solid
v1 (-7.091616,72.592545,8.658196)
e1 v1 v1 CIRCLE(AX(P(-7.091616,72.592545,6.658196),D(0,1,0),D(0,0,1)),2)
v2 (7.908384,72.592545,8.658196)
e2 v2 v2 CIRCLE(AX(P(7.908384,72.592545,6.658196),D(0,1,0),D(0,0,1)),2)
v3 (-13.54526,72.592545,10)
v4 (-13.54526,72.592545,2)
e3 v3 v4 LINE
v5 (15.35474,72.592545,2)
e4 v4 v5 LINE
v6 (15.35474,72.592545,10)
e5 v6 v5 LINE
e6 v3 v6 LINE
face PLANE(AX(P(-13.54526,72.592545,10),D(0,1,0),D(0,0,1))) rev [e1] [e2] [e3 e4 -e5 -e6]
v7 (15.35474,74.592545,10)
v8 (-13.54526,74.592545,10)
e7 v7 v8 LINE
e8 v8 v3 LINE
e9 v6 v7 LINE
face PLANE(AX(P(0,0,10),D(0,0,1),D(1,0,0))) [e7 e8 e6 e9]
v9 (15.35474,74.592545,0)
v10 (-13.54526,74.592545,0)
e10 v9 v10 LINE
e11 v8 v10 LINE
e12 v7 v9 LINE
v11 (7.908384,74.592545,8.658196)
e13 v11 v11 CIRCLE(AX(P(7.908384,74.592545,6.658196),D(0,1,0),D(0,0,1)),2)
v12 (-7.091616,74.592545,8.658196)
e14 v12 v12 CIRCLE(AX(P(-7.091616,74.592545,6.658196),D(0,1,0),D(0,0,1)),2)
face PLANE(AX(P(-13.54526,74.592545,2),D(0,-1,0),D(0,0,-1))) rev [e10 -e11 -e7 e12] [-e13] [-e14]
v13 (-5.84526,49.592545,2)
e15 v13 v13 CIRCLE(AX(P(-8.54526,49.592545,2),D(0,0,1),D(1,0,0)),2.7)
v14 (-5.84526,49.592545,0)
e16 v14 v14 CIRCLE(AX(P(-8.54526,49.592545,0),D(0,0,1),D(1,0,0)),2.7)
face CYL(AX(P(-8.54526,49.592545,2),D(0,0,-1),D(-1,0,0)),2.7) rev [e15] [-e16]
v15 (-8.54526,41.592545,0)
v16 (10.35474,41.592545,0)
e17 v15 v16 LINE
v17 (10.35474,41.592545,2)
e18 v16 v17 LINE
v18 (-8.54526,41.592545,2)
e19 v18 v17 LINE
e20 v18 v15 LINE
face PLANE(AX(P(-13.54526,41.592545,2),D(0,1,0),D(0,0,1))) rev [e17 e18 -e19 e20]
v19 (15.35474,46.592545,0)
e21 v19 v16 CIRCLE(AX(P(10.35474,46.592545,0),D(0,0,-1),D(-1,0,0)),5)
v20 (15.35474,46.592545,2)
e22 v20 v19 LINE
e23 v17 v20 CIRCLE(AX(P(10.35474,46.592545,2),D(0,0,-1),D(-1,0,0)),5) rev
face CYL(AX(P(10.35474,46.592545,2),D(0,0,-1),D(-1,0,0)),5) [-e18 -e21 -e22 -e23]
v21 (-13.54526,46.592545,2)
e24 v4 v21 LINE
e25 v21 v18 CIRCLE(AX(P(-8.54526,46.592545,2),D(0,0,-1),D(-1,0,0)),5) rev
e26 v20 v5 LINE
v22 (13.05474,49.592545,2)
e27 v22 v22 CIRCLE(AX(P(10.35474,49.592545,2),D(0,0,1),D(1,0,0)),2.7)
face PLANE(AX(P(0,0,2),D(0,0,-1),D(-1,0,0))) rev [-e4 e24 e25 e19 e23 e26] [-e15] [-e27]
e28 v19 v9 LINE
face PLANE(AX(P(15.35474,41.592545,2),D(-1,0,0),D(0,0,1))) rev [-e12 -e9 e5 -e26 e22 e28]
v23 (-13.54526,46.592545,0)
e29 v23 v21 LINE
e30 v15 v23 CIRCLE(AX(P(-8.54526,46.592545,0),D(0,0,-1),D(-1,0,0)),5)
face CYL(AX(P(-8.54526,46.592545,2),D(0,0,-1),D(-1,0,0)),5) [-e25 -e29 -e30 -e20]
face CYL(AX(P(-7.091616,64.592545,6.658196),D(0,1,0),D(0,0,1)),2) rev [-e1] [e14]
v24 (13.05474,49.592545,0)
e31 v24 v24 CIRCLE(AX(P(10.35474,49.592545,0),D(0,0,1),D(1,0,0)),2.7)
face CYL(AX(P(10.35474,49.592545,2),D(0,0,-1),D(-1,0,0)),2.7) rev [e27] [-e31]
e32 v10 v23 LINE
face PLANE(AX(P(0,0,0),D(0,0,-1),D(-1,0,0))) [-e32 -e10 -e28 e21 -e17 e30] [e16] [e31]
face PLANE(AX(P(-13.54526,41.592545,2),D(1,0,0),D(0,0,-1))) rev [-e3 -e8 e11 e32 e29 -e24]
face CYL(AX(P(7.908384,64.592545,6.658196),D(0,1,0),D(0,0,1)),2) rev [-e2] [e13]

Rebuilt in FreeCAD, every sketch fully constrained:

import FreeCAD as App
import Part
import Sketcher
from FreeCAD import Vector


def edges_at(feature, points):
    """Names of the edges that pass closest to the given points."""
    edges = feature.Shape.Edges
    near = lambda p: min(range(len(edges)), key=lambda i: edges[i].distToShape(Part.Vertex(*p))[0])
    return sorted({f"Edge{near(p) + 1}" for p in points})

doc = App.newDocument("Part")
body = doc.addObject("PartDesign::Body", "Body")

# Sketch on XY plane
sketch1 = body.newObject("Sketcher::SketchObject", "Sketch")
sketch1.AttachmentSupport = (doc.getObject("XY_Plane"), [""])
sketch1.MapMode = "FlatFace"
sketch1.addGeometry([
    Part.LineSegment(Vector(-13.54526, 74.592545, 0), Vector(-13.54526, 41.592545, 0)),  # 0
    Part.LineSegment(Vector(-13.54526, 41.592545, 0), Vector(15.35474, 41.592545, 0)),  # 1
    Part.LineSegment(Vector(15.35474, 41.592545, 0), Vector(15.35474, 74.592545, 0)),  # 2
    Part.LineSegment(Vector(15.35474, 74.592545, 0), Vector(-13.54526, 74.592545, 0)),  # 3
    Part.Circle(Vector(-8.54526, 49.592545, 0), Vector(0, 0, 1), 2.7),  # 4
    Part.Circle(Vector(10.35474, 49.592545, 0), Vector(0, 0, 1), 2.7),  # 5
], False)
sketch1.addConstraint([
    Sketcher.Constraint("Coincident", 0, 2, 1, 1),
    Sketcher.Constraint("Coincident", 1, 2, 2, 1),
    Sketcher.Constraint("Coincident", 2, 2, 3, 1),
    Sketcher.Constraint("Coincident", 3, 2, 0, 1),
    Sketcher.Constraint("Vertical", 0),
    Sketcher.Constraint("Horizontal", 1),
    Sketcher.Constraint("Vertical", 2),
    Sketcher.Constraint("Horizontal", 3),
    Sketcher.Constraint("Equal", 4, 5),
    Sketcher.Constraint("Horizontal", 4, 3, 5, 3),
    Sketcher.Constraint("Diameter", 4, 5.4),
    Sketcher.Constraint("DistanceY", 0, 2, 0, 1, 33.0),
    Sketcher.Constraint("DistanceX", 1, 1, 1, 2, 28.9),
    Sketcher.Constraint("DistanceX", 0, 2, 4, 3, 5.0),
    Sketcher.Constraint("DistanceY", 0, 2, 4, 3, 8.0),
    Sketcher.Constraint("DistanceX", 5, 3, 1, 2, 5.0),
    Sketcher.Constraint("DistanceX", 4, 3, -1, 1, 8.54526),
    Sketcher.Constraint("DistanceY", -1, 1, 4, 3, 49.592545),
])
pad1 = body.newObject("PartDesign::Pad", "Pad")
pad1.Profile = sketch1
pad1.Length = 2
doc.recompute()

fillet = body.newObject("PartDesign::Fillet", "Fillet")
fillet.Base = (pad1, edges_at(pad1, [(15.355, 41.593, 1), (-13.545, 41.593, 1)]))
fillet.Radius = 5

# Sketch on XY plane
sketch2 = body.newObject("Sketcher::SketchObject", "Sketch001")
sketch2.AttachmentSupport = (doc.getObject("XY_Plane"), [""])
sketch2.MapMode = "FlatFace"
sketch2.AttachmentOffset = App.Placement(Vector(0, 0, 2), App.Rotation())
sketch2.addGeometry([
    Part.LineSegment(Vector(-13.54526, 74.592545, 0), Vector(-13.54526, 72.592545, 0)),
    Part.LineSegment(Vector(-13.54526, 72.592545, 0), Vector(15.35474, 72.592545, 0)),
    Part.LineSegment(Vector(15.35474, 72.592545, 0), Vector(15.35474, 74.592545, 0)),
    Part.LineSegment(Vector(15.35474, 74.592545, 0), Vector(-13.54526, 74.592545, 0)),
], False)
sketch2.addConstraint([
    Sketcher.Constraint("Coincident", 0, 2, 1, 1),
    Sketcher.Constraint("Coincident", 1, 2, 2, 1),
    Sketcher.Constraint("Coincident", 2, 2, 3, 1),
    Sketcher.Constraint("Coincident", 3, 2, 0, 1),
    Sketcher.Constraint("Vertical", 0),
    Sketcher.Constraint("Horizontal", 1),
    Sketcher.Constraint("Vertical", 2),
    Sketcher.Constraint("Horizontal", 3),
    Sketcher.Constraint("DistanceY", 0, 2, 0, 1, 2.0),
    Sketcher.Constraint("DistanceX", 1, 1, 1, 2, 28.9),
    Sketcher.Constraint("DistanceX", 0, 2, -1, 1, 13.54526),
    Sketcher.Constraint("DistanceY", -1, 1, 0, 2, 72.592545),
])
pad2 = body.newObject("PartDesign::Pad", "Pad001")
pad2.Profile = sketch2
pad2.Length = 8

# Sketch on XZ plane
sketch3 = body.newObject("Sketcher::SketchObject", "Sketch002")
sketch3.AttachmentSupport = (doc.getObject("XZ_Plane"), [""])
sketch3.MapMode = "FlatFace"
sketch3.AttachmentOffset = App.Placement(Vector(0, 0, -74.592545), App.Rotation())
sketch3.addGeometry([
    Part.Circle(Vector(-7.091616, 6.658196, 0), Vector(0, 0, 1), 2),
    Part.Circle(Vector(7.908384, 6.658196, 0), Vector(0, 0, 1), 2),
], False)
sketch3.addConstraint([
    Sketcher.Constraint("Equal", 0, 1),
    Sketcher.Constraint("Horizontal", 0, 3, 1, 3),
    Sketcher.Constraint("Diameter", 0, 4.0),
    Sketcher.Constraint("DistanceX", 0, 3, 1, 3, 15.0),
    Sketcher.Constraint("DistanceX", 0, 3, -1, 1, 7.091616),
    Sketcher.Constraint("DistanceY", -1, 1, 0, 3, 6.658196),
])
pocket1 = body.newObject("PartDesign::Pocket", "Pocket")
pocket1.Profile = sketch3
pocket1.Length = 10
pocket1.Reversed = True

doc.recompute()
